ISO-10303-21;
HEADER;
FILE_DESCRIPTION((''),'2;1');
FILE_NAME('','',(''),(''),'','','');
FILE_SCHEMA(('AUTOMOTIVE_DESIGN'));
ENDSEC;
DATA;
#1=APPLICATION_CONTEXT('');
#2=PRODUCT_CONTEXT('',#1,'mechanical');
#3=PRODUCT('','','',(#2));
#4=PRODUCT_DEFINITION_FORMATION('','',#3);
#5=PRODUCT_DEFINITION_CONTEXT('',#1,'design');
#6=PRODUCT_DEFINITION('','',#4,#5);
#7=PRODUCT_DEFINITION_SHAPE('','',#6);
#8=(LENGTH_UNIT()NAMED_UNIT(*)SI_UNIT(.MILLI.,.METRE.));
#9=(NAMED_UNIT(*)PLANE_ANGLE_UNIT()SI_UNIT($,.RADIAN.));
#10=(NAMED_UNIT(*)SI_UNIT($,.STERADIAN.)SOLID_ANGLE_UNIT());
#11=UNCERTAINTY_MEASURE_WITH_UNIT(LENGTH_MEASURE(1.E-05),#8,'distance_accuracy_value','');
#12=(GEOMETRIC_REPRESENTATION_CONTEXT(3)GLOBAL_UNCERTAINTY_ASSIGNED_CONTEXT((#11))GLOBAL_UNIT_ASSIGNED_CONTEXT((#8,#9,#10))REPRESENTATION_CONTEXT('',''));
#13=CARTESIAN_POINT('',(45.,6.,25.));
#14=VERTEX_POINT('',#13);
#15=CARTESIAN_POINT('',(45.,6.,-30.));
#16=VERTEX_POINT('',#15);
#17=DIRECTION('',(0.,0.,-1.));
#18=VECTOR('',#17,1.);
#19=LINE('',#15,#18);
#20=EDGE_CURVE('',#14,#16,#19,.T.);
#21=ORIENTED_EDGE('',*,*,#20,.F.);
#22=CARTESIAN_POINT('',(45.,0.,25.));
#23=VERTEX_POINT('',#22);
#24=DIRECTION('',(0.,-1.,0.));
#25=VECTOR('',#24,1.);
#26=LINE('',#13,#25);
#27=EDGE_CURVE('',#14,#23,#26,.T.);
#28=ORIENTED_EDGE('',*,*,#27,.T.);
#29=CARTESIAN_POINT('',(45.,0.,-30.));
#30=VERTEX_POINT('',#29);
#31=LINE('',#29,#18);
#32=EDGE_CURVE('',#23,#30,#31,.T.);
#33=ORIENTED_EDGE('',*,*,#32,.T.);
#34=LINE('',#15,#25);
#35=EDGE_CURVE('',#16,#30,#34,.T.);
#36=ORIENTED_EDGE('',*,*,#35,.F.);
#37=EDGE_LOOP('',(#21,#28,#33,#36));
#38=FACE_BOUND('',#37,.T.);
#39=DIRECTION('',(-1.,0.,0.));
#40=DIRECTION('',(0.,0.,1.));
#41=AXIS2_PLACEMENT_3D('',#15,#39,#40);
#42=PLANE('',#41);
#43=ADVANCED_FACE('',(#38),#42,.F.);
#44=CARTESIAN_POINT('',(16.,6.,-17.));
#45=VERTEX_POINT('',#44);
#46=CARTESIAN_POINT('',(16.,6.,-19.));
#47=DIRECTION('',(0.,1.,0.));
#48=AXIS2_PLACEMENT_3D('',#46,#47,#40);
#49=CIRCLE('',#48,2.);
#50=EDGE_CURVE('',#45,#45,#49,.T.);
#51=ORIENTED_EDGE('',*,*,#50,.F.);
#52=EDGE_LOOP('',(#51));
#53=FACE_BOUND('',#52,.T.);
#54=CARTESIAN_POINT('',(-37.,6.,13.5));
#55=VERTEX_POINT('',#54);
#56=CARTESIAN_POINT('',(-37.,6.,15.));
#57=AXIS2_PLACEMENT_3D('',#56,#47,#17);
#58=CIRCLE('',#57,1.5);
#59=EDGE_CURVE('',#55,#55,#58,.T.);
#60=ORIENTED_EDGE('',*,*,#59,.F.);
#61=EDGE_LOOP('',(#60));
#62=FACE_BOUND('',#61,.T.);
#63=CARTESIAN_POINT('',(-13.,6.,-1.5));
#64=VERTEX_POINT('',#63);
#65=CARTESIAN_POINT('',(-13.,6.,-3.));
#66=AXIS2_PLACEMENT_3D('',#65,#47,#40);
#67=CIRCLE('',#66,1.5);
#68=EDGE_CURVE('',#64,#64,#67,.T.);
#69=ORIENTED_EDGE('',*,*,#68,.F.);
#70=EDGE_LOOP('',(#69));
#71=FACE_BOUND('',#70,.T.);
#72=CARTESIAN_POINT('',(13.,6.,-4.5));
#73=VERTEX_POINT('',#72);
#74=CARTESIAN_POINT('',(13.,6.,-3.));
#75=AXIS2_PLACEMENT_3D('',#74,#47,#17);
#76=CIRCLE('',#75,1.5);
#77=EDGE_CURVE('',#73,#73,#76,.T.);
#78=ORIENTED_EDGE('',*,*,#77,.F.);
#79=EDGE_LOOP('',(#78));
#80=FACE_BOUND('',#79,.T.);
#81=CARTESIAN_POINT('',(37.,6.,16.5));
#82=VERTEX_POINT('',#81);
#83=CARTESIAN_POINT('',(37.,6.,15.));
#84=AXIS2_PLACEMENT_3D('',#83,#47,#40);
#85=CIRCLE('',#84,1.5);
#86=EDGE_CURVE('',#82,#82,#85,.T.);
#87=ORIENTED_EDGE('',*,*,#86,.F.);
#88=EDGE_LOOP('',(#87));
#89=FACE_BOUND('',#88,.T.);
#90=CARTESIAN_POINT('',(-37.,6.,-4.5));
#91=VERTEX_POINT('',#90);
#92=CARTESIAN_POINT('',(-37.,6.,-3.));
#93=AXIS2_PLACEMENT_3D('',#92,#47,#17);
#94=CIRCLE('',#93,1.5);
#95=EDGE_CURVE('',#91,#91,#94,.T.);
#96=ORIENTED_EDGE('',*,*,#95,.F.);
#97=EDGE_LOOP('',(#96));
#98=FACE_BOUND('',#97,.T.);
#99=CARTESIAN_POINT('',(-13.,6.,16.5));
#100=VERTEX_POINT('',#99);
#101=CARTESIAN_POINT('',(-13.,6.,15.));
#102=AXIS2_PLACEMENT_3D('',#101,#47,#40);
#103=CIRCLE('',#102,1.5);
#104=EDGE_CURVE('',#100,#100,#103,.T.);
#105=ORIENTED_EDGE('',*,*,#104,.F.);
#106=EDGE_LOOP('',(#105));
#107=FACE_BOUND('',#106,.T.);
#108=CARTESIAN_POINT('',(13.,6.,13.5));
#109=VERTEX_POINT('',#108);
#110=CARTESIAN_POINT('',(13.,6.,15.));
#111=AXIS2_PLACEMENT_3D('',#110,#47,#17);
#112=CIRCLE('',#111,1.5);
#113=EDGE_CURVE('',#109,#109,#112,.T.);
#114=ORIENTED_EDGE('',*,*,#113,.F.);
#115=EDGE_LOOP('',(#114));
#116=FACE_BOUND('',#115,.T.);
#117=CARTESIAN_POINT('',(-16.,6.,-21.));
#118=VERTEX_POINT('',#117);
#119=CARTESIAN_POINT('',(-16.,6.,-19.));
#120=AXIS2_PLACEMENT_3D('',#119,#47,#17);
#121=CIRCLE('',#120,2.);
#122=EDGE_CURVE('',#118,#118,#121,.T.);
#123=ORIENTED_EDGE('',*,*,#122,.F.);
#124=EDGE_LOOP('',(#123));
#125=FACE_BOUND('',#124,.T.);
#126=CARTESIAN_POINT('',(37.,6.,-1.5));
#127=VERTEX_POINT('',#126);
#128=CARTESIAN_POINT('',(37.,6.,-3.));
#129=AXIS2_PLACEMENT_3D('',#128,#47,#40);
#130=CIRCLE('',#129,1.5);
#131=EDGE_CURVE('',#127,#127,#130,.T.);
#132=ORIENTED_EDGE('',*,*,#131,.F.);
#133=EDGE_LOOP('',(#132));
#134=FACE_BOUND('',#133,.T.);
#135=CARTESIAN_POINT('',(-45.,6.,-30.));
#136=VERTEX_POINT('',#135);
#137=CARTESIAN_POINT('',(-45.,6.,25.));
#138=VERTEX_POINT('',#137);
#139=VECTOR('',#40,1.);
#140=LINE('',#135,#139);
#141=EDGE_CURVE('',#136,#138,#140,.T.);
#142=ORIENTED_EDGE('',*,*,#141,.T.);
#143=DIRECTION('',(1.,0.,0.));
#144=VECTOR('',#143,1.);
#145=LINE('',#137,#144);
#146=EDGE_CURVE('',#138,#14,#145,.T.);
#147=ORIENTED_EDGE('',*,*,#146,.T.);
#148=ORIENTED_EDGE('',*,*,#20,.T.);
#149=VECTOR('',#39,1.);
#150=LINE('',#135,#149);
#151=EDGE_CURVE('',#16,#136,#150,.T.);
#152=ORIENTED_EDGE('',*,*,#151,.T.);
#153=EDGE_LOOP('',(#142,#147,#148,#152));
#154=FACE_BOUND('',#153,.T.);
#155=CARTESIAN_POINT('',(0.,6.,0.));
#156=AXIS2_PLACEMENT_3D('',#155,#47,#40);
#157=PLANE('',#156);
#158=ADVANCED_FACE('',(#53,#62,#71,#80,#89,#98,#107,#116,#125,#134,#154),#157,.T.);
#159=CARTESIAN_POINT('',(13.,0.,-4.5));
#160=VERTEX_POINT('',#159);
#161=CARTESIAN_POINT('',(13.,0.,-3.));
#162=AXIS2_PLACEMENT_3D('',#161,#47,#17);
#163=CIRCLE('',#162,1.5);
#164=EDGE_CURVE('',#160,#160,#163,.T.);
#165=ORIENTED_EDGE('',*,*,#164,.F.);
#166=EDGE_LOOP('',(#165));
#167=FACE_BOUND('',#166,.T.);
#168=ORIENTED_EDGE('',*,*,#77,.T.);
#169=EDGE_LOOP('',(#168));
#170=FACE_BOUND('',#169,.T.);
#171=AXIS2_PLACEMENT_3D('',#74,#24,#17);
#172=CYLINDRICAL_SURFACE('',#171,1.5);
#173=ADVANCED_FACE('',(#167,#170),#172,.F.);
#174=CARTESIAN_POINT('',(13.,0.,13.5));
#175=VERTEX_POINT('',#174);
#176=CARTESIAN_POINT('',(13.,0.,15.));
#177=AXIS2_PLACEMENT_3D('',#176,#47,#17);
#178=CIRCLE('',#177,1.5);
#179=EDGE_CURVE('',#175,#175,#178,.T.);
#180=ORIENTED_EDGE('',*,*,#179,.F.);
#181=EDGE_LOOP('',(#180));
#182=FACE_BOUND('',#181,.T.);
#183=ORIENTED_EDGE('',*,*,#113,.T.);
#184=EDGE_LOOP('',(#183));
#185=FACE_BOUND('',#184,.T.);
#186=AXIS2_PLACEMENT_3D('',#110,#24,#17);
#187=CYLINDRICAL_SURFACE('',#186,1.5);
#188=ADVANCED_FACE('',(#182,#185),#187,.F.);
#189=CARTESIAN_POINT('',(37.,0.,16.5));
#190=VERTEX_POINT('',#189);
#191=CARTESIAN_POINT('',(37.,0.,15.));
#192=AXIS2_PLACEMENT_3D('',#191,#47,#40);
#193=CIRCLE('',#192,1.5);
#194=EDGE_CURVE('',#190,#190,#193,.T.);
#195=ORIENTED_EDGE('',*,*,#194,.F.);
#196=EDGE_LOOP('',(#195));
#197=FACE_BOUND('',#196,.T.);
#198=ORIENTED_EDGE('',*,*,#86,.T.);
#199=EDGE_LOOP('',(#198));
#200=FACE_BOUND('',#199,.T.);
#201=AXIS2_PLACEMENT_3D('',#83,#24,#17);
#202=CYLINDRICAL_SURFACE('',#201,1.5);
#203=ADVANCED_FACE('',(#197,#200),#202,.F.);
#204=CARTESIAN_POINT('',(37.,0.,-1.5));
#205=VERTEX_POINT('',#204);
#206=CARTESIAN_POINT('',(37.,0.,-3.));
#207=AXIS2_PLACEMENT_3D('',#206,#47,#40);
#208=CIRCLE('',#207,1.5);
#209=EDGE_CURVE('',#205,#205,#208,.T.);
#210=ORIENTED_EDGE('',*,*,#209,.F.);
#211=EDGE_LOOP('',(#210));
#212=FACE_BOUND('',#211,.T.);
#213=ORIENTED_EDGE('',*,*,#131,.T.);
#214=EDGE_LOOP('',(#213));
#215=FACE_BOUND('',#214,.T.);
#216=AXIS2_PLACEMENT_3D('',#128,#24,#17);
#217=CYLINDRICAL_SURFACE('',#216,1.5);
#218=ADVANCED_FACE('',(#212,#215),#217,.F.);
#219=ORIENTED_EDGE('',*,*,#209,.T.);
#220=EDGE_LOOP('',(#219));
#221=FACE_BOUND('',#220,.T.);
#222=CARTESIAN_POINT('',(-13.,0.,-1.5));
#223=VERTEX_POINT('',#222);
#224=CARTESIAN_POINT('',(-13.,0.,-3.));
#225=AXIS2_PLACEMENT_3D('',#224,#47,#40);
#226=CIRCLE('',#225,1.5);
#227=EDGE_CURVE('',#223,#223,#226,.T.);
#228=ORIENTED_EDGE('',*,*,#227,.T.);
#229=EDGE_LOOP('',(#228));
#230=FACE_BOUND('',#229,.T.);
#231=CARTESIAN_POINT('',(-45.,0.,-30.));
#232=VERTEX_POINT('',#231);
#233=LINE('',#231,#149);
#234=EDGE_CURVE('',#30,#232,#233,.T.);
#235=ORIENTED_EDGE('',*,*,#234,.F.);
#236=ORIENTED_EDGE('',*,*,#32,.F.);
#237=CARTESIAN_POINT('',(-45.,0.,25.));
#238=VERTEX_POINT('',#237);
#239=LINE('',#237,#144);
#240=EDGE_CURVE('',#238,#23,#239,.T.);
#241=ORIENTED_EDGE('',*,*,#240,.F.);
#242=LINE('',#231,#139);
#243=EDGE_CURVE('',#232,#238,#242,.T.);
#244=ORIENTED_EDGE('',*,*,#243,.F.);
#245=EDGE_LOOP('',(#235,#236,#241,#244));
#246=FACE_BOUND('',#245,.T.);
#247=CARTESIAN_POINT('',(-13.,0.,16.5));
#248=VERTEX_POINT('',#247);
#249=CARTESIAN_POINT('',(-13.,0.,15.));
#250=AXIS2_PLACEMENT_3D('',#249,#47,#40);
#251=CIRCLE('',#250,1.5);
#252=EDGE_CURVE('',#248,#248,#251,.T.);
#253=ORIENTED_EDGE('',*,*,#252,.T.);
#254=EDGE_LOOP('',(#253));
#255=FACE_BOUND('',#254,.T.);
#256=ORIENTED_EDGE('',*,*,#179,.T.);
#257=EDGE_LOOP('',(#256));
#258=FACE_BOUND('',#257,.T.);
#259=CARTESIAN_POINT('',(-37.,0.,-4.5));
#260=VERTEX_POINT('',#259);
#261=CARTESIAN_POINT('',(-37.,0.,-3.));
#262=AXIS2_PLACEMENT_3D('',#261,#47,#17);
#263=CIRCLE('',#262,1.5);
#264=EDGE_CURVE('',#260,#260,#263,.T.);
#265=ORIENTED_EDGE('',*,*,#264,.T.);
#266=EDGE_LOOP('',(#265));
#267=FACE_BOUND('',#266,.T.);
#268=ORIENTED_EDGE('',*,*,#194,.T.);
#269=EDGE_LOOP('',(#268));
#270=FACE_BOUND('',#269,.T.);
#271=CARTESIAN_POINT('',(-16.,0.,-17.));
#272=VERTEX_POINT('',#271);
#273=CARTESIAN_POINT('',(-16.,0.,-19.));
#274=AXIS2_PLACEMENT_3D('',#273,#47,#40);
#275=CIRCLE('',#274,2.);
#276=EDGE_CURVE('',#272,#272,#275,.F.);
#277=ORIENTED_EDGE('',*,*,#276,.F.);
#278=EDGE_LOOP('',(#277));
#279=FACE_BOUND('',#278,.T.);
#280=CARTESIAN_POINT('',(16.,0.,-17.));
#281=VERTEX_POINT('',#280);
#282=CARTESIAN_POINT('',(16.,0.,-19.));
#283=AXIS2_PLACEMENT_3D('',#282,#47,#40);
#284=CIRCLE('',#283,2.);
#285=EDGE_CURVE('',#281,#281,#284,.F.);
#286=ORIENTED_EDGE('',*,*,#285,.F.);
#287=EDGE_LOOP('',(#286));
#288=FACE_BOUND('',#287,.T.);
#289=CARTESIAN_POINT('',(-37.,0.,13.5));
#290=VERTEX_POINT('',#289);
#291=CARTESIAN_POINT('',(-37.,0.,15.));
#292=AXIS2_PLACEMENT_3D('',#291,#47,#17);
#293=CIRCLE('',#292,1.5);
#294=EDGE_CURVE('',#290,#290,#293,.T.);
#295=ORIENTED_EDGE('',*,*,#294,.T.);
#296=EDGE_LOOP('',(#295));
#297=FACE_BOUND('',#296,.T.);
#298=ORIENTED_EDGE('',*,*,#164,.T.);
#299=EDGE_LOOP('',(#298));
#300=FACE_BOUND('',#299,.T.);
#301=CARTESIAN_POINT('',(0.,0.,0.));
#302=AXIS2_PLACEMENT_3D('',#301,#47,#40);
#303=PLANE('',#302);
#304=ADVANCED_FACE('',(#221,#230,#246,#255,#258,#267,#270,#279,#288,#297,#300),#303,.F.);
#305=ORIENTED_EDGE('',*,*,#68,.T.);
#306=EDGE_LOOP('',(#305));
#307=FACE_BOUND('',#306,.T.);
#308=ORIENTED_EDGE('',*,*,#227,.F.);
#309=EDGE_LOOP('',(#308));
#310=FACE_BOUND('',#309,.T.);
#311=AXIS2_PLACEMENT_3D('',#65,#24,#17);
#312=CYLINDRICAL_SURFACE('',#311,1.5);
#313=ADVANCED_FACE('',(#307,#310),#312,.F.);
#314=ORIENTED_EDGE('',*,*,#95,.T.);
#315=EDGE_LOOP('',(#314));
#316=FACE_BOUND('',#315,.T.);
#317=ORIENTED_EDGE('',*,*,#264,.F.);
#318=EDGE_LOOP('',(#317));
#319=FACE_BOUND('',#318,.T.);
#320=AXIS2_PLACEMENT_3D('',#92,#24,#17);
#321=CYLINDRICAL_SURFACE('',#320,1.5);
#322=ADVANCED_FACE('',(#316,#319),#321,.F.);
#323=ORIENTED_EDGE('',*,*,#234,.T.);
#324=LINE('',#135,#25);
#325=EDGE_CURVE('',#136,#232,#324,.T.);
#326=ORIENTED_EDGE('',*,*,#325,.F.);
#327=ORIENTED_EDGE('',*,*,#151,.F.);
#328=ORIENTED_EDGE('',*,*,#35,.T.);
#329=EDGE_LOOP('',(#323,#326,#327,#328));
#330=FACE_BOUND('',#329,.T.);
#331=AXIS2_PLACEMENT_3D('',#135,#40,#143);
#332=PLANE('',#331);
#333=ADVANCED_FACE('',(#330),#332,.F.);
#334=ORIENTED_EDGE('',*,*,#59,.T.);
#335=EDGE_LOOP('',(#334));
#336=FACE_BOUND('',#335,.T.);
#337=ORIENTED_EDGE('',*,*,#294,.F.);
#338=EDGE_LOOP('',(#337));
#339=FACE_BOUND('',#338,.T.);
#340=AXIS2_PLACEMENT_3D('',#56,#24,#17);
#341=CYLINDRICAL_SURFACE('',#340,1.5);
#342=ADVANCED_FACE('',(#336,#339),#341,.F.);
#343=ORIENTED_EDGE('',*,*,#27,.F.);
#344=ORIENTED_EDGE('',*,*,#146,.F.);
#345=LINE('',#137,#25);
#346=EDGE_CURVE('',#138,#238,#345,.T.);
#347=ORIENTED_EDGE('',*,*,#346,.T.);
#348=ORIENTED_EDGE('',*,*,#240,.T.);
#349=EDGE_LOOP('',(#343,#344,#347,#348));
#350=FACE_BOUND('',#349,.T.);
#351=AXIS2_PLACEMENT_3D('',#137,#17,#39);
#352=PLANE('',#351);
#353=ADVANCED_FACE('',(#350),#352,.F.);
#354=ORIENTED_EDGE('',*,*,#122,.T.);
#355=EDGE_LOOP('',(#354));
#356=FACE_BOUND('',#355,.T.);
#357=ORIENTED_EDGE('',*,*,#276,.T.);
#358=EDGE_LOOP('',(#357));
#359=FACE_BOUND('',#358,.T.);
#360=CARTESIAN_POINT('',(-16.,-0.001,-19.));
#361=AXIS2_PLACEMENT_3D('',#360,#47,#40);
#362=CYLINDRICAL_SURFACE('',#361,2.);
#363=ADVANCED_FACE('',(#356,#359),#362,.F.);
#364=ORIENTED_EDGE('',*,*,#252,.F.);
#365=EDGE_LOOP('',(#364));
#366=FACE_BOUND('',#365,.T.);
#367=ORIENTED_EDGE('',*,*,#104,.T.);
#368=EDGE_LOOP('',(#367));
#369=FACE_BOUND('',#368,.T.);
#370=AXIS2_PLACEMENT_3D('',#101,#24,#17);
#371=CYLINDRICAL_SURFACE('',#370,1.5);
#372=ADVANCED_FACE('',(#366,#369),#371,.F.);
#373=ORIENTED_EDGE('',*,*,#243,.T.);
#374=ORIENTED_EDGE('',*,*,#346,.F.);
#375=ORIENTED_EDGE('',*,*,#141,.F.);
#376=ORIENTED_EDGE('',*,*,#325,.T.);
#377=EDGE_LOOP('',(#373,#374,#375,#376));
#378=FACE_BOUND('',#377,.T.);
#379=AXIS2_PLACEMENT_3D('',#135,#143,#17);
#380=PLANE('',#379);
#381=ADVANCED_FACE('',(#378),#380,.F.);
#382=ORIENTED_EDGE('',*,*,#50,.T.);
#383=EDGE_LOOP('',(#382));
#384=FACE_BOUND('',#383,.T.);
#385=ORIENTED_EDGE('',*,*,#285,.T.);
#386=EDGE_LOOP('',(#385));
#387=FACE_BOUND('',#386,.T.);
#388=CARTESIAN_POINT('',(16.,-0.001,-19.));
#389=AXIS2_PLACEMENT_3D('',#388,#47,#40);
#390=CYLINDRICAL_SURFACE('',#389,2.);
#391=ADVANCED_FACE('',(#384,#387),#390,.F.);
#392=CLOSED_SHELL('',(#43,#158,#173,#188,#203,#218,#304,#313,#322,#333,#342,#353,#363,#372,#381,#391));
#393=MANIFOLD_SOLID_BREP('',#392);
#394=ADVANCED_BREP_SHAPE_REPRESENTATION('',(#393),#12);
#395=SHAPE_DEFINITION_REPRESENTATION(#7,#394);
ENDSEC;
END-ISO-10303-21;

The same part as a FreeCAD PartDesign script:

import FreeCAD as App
import Part
import Sketcher
Q = App.Units.Quantity


def add_polygon(sketch, points):
    """Adds a closed chain of lines whose ends are joined by coincident constraints."""
    first, n = sketch.GeometryCount, len(points)
    for a, b in zip(points, points[1:] + points[:1]):
        sketch.addGeometry(Part.LineSegment(App.Vector(*a, 0), App.Vector(*b, 0)), False)
    for i in range(n):
        sketch.addConstraint(Sketcher.Constraint("Coincident", first + i, 2, first + (i + 1) % n, 1))

doc = App.newDocument("Part")
body = doc.addObject("PartDesign::Body", "Body")

# Sketch on XZ plane
sketch1 = doc.addObject("Sketcher::SketchObject", "Sketch")
body.addObject(sketch1)
sketch1.AttachmentSupport = (doc.XZ_Plane, [""])
sketch1.MapMode = "FlatFace"
add_polygon(sketch1, [(-45, -30), (-45, 25), (45, 25), (45, -30)])  # lines 0-3
sketch1.addGeometry(Part.Circle(App.Vector(-37, 15, 0), App.Vector(0, 0, 1), 1.5), False)  # 4
sketch1.addGeometry(Part.Circle(App.Vector(-13, 15, 0), App.Vector(0, 0, 1), 1.5), False)  # 5
sketch1.addGeometry(Part.Circle(App.Vector(13, 15, 0), App.Vector(0, 0, 1), 1.5), False)  # 6
sketch1.addGeometry(Part.Circle(App.Vector(37, 15, 0), App.Vector(0, 0, 1), 1.5), False)  # 7
sketch1.addGeometry(Part.Circle(App.Vector(-37, -3, 0), App.Vector(0, 0, 1), 1.5), False)  # 8
sketch1.addGeometry(Part.Circle(App.Vector(-13, -3, 0), App.Vector(0, 0, 1), 1.5), False)  # 9
sketch1.addGeometry(Part.Circle(App.Vector(13, -3, 0), App.Vector(0, 0, 1), 1.5), False)  # 10
sketch1.addGeometry(Part.Circle(App.Vector(37, -3, 0), App.Vector(0, 0, 1), 1.5), False)  # 11
sketch1.addConstraint([
    Sketcher.Constraint("Vertical", 0),
    Sketcher.Constraint("Horizontal", 1),
    Sketcher.Constraint("Vertical", 2),
    Sketcher.Constraint("Horizontal", 3),
    Sketcher.Constraint("Equal", 4, 5),
    Sketcher.Constraint("Equal", 5, 6),
    Sketcher.Constraint("Equal", 6, 7),
    Sketcher.Constraint("Equal", 7, 8),
    Sketcher.Constraint("Equal", 8, 9),
    Sketcher.Constraint("Equal", 9, 10),
    Sketcher.Constraint("Equal", 10, 11),
    Sketcher.Constraint("Symmetric", 5, 3, 6, 3, -2),
    Sketcher.Constraint("Symmetric", 4, 3, 7, 3, -2),
    Sketcher.Constraint("Symmetric", 9, 3, 10, 3, -2),
    Sketcher.Constraint("Symmetric", 8, 3, 11, 3, -2),
    Sketcher.Constraint("Horizontal", 4, 3, 5, 3),
    Sketcher.Constraint("Horizontal", 8, 3, 9, 3),
    Sketcher.Constraint("Vertical", 4, 3, 8, 3),
    Sketcher.Constraint("Vertical", 5, 3, 9, 3),
    Sketcher.Constraint("Diameter", 4, Q("3 mm")),
    Sketcher.Constraint("DistanceX", 1, 1, 1, 2, Q("90 mm")),
    Sketcher.Constraint("DistanceY", 0, 1, 0, 2, Q("55 mm")),
    Sketcher.Constraint("DistanceX", 4, 3, -1, 1, Q("37 mm")),
    Sketcher.Constraint("DistanceY", -1, 1, 4, 3, Q("15 mm")),
    Sketcher.Constraint("DistanceX", 5, 3, -1, 1, Q("13 mm")),
    Sketcher.Constraint("DistanceY", 8, 3, -1, 1, Q("3 mm")),
    Sketcher.Constraint("DistanceX", 0, 2, -1, 1, Q("45 mm")),
    Sketcher.Constraint("DistanceY", -1, 1, 0, 2, Q("25 mm")),
])
pad1 = doc.addObject("PartDesign::Pad", "Pad")
body.addObject(pad1)
pad1.Profile = sketch1
pad1.Length = 6
pad1.Reversed = True

# Sketch on XZ plane
sketch2 = doc.addObject("Sketcher::SketchObject", "Sketch001")
body.addObject(sketch2)
sketch2.AttachmentSupport = (doc.XZ_Plane, [""])
sketch2.MapMode = "FlatFace"
sketch2.AttachmentOffset = App.Placement(App.Vector(0, 0, -6), App.Rotation())
sketch2.addGeometry(Part.Circle(App.Vector(16, -19, 0), App.Vector(0, 0, 1), 2), False)
sketch2.addConstraint([
    Sketcher.Constraint("Diameter", 0, Q("4 mm")),
    Sketcher.Constraint("DistanceX", -1, 1, 0, 3, Q("16 mm")),
    Sketcher.Constraint("DistanceY", 0, 3, -1, 1, Q("19 mm")),
])
pocket1 = doc.addObject("PartDesign::Pocket", "Pocket")
body.addObject(pocket1)
pocket1.Profile = sketch2
pocket1.Type = "UpToFirst"
pocket1.Reversed = True

# Sketch on XZ plane
sketch3 = doc.addObject("Sketcher::SketchObject", "Sketch002")
body.addObject(sketch3)
sketch3.AttachmentSupport = (doc.XZ_Plane, [""])
sketch3.MapMode = "FlatFace"
sketch3.AttachmentOffset = App.Placement(App.Vector(0, 0, -6), App.Rotation())
sketch3.addGeometry(Part.Circle(App.Vector(-16, -19, 0), App.Vector(0, 0, 1), 2), False)
sketch3.addConstraint([
    Sketcher.Constraint("Diameter", 0, Q("4 mm")),
    Sketcher.Constraint("DistanceX", 0, 3, -1, 1, Q("16 mm")),
    Sketcher.Constraint("DistanceY", 0, 3, -1, 1, Q("19 mm")),
])
pocket2 = doc.addObject("PartDesign::Pocket", "Pocket001")
body.addObject(pocket2)
pocket2.Profile = sketch3
pocket2.Type = "UpToFirst"
pocket2.Reversed = True

doc.recompute()
